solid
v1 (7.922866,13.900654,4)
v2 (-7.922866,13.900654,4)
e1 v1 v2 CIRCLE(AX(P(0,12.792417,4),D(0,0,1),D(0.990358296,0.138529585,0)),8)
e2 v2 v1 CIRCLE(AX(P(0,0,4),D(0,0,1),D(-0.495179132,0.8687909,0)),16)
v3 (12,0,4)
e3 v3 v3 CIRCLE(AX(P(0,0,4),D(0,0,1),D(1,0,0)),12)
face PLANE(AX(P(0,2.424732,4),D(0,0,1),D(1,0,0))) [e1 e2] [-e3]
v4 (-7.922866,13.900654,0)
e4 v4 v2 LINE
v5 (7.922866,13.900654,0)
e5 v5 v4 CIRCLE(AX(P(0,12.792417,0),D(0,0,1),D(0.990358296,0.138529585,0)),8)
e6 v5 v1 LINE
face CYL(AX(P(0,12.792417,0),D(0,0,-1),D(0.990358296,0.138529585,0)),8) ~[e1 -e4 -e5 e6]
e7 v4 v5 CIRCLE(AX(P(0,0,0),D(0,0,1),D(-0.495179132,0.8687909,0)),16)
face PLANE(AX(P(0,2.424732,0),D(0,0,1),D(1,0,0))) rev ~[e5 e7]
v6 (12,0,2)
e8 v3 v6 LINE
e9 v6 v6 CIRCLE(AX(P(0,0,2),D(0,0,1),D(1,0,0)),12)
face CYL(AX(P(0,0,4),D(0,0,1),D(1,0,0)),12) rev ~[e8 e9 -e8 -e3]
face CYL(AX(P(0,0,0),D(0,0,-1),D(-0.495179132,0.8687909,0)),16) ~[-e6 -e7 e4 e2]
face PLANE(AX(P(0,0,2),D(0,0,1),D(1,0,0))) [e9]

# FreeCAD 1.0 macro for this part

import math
import FreeCAD as App
import Part
import Sketcher
Q = App.Units.Quantity

doc = App.newDocument("Part")
body = doc.addObject("PartDesign::Body", "Body")

sketch1 = doc.addObject("Sketcher::SketchObject", "Sketch")
body.addObject(sketch1)
sketch1.AttachmentSupport = (doc.XY_Plane, [""])
sketch1.MapMode = "FlatFace"
sketch1.addGeometry([
    Part.ArcOfCircle(Part.Circle(App.Vector(0, 12.792417, 0), App.Vector(0, 0, 1), 8), math.radians(7.962769), math.radians(172.037231)),
    Part.ArcOfCircle(Part.Circle(App.Vector(0, 0, 0), App.Vector(0, 0, 1), 16), math.radians(119.681563), math.radians(420.318437)),
], False)
sketch1.addConstraint([
    Sketcher.Constraint("Coincident", 0, 1, 1, 2),
    Sketcher.Constraint("Coincident", 1, 1, 0, 2),
    Sketcher.Constraint("Coincident", 1, 3, -1, 1),
    Sketcher.Constraint("PointOnObject", 0, 3, -2),
    Sketcher.Constraint("Radius", 0, Q("8 mm")),
    Sketcher.Constraint("Radius", 1, Q("16 mm")),
    Sketcher.Constraint("DistanceX", 1, 1, 0, 1, Q("15.845732 mm")),
])
pad1 = doc.addObject("PartDesign::Pad", "Pad")
body.addObject(pad1)
pad1.Profile = sketch1
pad1.Length = 4

sketch2 = doc.addObject("Sketcher::SketchObject", "Sketch001")
body.addObject(sketch2)
sketch2.AttachmentSupport = (doc.XY_Plane, [""])
sketch2.MapMode = "FlatFace"
sketch2.AttachmentOffset = App.Placement(App.Vector(0, 0, 4), App.Rotation())
sketch2.addGeometry(Part.Circle(App.Vector(0, 0, 0), App.Vector(0, 0, 1), 12), False)
sketch2.addConstraint([
    Sketcher.Constraint("Coincident", 0, 3, -1, 1),
    Sketcher.Constraint("Diameter", 0, Q("24 mm")),
])
pocket1 = doc.addObject("PartDesign::Pocket", "Pocket")
body.addObject(pocket1)
pocket1.Profile = sketch2
pocket1.Length = 2

doc.recompute()
